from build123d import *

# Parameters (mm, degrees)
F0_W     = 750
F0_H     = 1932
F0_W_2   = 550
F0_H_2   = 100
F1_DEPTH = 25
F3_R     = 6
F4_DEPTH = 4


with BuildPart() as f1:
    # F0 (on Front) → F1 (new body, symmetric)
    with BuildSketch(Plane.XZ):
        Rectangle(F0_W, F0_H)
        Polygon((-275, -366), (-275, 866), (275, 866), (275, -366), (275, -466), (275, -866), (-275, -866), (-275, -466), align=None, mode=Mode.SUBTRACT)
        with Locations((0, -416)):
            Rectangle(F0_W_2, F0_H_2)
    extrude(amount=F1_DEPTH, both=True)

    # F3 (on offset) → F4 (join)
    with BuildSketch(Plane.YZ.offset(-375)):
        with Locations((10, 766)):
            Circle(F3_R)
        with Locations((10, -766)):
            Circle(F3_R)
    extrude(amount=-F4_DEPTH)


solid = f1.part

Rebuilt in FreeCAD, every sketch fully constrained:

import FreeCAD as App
import Part
import Sketcher
Q = App.Units.Quantity


def add_polygon(sketch, points):
    """Adds a closed chain of lines whose ends are joined by coincident constraints."""
    first, n = sketch.GeometryCount, len(points)
    for a, b in zip(points, points[1:] + points[:1]):
        sketch.addGeometry(Part.LineSegment(App.Vector(*a, 0), App.Vector(*b, 0)), False)
    for i in range(n):
        sketch.addConstraint(Sketcher.Constraint("Coincident", first + i, 2, first + (i + 1) % n, 1))

doc = App.newDocument("Part")
body = doc.addObject("PartDesign::Body", "Body")

sketch1 = body.newObject("Sketcher::SketchObject", "Sketch")
sketch1.AttachmentSupport = (doc.getObject("XZ_Plane"), [""])
sketch1.MapMode = "FlatFace"
add_polygon(sketch1, [(-375, 966), (-375, -966), (375, -966), (375, 966)])
add_polygon(sketch1, [(-275, -866), (-275, -466), (275, -466), (275, -866)])
add_polygon(sketch1, [(-275, -366), (-275, 866), (275, 866), (275, -366)])
sketch1.addConstraint([
    Sketcher.Constraint("Vertical", 0),
    Sketcher.Constraint("Horizontal", 1),
    Sketcher.Constraint("Vertical", 2),
    Sketcher.Constraint("Horizontal", 3),
    Sketcher.Constraint("Vertical", 4),
    Sketcher.Constraint("Horizontal", 5),
    Sketcher.Constraint("Vertical", 6),
    Sketcher.Constraint("Horizontal", 7),
    Sketcher.Constraint("Vertical", 8),
    Sketcher.Constraint("Horizontal", 9),
    Sketcher.Constraint("Vertical", 10),
    Sketcher.Constraint("Horizontal", 11),
    Sketcher.Constraint("Symmetric", 0, 2, 2, 2, -1, 1),
    Sketcher.Constraint("Symmetric", 6, 2, 8, 2, -1, 1),
    Sketcher.Constraint("Vertical", 7, 2, 8, 2),
    Sketcher.Constraint("Vertical", 6, 2, 9, 2),
    Sketcher.Constraint("DistanceX", 1, 1, 1, 2, Q("750 mm")),
    Sketcher.Constraint("DistanceX", 5, 1, 5, 2, Q("550 mm")),
    Sketcher.Constraint("DistanceY", 0, 2, 0, 1, Q("1932 mm")),
    Sketcher.Constraint("DistanceY", 4, 1, 4, 2, Q("400 mm")),
    Sketcher.Constraint("DistanceY", 8, 1, 8, 2, Q("1232 mm")),
    Sketcher.Constraint("DistanceY", 4, 2, -1, 1, Q("466 mm")),
])
pad1 = body.newObject("PartDesign::Pad", "Pad")
pad1.Profile = sketch1
pad1.Length = 50
pad1.Midplane = True

sketch2 = body.newObject("Sketcher::SketchObject", "Sketch001")
sketch2.AttachmentSupport = (doc.getObject("YZ_Plane"), [""])
sketch2.MapMode = "FlatFace"
sketch2.AttachmentOffset = App.Placement(App.Vector(0, 0, -375), App.Rotation())
sketch2.addGeometry([
    Part.Circle(App.Vector(10, 766, 0), App.Vector(0, 0, 1), 6),
    Part.Circle(App.Vector(10, -766, 0), App.Vector(0, 0, 1), 6),
], False)
sketch2.addConstraint([
    Sketcher.Constraint("Equal", 0, 1),
    Sketcher.Constraint("Symmetric", 0, 3, 1, 3, -1),
    Sketcher.Constraint("Diameter", 0, Q("12 mm")),
    Sketcher.Constraint("DistanceX", -1, 1, 0, 3, Q("10 mm")),
    Sketcher.Constraint("DistanceY", -1, 1, 0, 3, Q("766 mm")),
])
pad2 = body.newObject("PartDesign::Pad", "Pad001")
pad2.Profile = sketch2
pad2.Length = 4
pad2.Reversed = True

doc.recompute()
